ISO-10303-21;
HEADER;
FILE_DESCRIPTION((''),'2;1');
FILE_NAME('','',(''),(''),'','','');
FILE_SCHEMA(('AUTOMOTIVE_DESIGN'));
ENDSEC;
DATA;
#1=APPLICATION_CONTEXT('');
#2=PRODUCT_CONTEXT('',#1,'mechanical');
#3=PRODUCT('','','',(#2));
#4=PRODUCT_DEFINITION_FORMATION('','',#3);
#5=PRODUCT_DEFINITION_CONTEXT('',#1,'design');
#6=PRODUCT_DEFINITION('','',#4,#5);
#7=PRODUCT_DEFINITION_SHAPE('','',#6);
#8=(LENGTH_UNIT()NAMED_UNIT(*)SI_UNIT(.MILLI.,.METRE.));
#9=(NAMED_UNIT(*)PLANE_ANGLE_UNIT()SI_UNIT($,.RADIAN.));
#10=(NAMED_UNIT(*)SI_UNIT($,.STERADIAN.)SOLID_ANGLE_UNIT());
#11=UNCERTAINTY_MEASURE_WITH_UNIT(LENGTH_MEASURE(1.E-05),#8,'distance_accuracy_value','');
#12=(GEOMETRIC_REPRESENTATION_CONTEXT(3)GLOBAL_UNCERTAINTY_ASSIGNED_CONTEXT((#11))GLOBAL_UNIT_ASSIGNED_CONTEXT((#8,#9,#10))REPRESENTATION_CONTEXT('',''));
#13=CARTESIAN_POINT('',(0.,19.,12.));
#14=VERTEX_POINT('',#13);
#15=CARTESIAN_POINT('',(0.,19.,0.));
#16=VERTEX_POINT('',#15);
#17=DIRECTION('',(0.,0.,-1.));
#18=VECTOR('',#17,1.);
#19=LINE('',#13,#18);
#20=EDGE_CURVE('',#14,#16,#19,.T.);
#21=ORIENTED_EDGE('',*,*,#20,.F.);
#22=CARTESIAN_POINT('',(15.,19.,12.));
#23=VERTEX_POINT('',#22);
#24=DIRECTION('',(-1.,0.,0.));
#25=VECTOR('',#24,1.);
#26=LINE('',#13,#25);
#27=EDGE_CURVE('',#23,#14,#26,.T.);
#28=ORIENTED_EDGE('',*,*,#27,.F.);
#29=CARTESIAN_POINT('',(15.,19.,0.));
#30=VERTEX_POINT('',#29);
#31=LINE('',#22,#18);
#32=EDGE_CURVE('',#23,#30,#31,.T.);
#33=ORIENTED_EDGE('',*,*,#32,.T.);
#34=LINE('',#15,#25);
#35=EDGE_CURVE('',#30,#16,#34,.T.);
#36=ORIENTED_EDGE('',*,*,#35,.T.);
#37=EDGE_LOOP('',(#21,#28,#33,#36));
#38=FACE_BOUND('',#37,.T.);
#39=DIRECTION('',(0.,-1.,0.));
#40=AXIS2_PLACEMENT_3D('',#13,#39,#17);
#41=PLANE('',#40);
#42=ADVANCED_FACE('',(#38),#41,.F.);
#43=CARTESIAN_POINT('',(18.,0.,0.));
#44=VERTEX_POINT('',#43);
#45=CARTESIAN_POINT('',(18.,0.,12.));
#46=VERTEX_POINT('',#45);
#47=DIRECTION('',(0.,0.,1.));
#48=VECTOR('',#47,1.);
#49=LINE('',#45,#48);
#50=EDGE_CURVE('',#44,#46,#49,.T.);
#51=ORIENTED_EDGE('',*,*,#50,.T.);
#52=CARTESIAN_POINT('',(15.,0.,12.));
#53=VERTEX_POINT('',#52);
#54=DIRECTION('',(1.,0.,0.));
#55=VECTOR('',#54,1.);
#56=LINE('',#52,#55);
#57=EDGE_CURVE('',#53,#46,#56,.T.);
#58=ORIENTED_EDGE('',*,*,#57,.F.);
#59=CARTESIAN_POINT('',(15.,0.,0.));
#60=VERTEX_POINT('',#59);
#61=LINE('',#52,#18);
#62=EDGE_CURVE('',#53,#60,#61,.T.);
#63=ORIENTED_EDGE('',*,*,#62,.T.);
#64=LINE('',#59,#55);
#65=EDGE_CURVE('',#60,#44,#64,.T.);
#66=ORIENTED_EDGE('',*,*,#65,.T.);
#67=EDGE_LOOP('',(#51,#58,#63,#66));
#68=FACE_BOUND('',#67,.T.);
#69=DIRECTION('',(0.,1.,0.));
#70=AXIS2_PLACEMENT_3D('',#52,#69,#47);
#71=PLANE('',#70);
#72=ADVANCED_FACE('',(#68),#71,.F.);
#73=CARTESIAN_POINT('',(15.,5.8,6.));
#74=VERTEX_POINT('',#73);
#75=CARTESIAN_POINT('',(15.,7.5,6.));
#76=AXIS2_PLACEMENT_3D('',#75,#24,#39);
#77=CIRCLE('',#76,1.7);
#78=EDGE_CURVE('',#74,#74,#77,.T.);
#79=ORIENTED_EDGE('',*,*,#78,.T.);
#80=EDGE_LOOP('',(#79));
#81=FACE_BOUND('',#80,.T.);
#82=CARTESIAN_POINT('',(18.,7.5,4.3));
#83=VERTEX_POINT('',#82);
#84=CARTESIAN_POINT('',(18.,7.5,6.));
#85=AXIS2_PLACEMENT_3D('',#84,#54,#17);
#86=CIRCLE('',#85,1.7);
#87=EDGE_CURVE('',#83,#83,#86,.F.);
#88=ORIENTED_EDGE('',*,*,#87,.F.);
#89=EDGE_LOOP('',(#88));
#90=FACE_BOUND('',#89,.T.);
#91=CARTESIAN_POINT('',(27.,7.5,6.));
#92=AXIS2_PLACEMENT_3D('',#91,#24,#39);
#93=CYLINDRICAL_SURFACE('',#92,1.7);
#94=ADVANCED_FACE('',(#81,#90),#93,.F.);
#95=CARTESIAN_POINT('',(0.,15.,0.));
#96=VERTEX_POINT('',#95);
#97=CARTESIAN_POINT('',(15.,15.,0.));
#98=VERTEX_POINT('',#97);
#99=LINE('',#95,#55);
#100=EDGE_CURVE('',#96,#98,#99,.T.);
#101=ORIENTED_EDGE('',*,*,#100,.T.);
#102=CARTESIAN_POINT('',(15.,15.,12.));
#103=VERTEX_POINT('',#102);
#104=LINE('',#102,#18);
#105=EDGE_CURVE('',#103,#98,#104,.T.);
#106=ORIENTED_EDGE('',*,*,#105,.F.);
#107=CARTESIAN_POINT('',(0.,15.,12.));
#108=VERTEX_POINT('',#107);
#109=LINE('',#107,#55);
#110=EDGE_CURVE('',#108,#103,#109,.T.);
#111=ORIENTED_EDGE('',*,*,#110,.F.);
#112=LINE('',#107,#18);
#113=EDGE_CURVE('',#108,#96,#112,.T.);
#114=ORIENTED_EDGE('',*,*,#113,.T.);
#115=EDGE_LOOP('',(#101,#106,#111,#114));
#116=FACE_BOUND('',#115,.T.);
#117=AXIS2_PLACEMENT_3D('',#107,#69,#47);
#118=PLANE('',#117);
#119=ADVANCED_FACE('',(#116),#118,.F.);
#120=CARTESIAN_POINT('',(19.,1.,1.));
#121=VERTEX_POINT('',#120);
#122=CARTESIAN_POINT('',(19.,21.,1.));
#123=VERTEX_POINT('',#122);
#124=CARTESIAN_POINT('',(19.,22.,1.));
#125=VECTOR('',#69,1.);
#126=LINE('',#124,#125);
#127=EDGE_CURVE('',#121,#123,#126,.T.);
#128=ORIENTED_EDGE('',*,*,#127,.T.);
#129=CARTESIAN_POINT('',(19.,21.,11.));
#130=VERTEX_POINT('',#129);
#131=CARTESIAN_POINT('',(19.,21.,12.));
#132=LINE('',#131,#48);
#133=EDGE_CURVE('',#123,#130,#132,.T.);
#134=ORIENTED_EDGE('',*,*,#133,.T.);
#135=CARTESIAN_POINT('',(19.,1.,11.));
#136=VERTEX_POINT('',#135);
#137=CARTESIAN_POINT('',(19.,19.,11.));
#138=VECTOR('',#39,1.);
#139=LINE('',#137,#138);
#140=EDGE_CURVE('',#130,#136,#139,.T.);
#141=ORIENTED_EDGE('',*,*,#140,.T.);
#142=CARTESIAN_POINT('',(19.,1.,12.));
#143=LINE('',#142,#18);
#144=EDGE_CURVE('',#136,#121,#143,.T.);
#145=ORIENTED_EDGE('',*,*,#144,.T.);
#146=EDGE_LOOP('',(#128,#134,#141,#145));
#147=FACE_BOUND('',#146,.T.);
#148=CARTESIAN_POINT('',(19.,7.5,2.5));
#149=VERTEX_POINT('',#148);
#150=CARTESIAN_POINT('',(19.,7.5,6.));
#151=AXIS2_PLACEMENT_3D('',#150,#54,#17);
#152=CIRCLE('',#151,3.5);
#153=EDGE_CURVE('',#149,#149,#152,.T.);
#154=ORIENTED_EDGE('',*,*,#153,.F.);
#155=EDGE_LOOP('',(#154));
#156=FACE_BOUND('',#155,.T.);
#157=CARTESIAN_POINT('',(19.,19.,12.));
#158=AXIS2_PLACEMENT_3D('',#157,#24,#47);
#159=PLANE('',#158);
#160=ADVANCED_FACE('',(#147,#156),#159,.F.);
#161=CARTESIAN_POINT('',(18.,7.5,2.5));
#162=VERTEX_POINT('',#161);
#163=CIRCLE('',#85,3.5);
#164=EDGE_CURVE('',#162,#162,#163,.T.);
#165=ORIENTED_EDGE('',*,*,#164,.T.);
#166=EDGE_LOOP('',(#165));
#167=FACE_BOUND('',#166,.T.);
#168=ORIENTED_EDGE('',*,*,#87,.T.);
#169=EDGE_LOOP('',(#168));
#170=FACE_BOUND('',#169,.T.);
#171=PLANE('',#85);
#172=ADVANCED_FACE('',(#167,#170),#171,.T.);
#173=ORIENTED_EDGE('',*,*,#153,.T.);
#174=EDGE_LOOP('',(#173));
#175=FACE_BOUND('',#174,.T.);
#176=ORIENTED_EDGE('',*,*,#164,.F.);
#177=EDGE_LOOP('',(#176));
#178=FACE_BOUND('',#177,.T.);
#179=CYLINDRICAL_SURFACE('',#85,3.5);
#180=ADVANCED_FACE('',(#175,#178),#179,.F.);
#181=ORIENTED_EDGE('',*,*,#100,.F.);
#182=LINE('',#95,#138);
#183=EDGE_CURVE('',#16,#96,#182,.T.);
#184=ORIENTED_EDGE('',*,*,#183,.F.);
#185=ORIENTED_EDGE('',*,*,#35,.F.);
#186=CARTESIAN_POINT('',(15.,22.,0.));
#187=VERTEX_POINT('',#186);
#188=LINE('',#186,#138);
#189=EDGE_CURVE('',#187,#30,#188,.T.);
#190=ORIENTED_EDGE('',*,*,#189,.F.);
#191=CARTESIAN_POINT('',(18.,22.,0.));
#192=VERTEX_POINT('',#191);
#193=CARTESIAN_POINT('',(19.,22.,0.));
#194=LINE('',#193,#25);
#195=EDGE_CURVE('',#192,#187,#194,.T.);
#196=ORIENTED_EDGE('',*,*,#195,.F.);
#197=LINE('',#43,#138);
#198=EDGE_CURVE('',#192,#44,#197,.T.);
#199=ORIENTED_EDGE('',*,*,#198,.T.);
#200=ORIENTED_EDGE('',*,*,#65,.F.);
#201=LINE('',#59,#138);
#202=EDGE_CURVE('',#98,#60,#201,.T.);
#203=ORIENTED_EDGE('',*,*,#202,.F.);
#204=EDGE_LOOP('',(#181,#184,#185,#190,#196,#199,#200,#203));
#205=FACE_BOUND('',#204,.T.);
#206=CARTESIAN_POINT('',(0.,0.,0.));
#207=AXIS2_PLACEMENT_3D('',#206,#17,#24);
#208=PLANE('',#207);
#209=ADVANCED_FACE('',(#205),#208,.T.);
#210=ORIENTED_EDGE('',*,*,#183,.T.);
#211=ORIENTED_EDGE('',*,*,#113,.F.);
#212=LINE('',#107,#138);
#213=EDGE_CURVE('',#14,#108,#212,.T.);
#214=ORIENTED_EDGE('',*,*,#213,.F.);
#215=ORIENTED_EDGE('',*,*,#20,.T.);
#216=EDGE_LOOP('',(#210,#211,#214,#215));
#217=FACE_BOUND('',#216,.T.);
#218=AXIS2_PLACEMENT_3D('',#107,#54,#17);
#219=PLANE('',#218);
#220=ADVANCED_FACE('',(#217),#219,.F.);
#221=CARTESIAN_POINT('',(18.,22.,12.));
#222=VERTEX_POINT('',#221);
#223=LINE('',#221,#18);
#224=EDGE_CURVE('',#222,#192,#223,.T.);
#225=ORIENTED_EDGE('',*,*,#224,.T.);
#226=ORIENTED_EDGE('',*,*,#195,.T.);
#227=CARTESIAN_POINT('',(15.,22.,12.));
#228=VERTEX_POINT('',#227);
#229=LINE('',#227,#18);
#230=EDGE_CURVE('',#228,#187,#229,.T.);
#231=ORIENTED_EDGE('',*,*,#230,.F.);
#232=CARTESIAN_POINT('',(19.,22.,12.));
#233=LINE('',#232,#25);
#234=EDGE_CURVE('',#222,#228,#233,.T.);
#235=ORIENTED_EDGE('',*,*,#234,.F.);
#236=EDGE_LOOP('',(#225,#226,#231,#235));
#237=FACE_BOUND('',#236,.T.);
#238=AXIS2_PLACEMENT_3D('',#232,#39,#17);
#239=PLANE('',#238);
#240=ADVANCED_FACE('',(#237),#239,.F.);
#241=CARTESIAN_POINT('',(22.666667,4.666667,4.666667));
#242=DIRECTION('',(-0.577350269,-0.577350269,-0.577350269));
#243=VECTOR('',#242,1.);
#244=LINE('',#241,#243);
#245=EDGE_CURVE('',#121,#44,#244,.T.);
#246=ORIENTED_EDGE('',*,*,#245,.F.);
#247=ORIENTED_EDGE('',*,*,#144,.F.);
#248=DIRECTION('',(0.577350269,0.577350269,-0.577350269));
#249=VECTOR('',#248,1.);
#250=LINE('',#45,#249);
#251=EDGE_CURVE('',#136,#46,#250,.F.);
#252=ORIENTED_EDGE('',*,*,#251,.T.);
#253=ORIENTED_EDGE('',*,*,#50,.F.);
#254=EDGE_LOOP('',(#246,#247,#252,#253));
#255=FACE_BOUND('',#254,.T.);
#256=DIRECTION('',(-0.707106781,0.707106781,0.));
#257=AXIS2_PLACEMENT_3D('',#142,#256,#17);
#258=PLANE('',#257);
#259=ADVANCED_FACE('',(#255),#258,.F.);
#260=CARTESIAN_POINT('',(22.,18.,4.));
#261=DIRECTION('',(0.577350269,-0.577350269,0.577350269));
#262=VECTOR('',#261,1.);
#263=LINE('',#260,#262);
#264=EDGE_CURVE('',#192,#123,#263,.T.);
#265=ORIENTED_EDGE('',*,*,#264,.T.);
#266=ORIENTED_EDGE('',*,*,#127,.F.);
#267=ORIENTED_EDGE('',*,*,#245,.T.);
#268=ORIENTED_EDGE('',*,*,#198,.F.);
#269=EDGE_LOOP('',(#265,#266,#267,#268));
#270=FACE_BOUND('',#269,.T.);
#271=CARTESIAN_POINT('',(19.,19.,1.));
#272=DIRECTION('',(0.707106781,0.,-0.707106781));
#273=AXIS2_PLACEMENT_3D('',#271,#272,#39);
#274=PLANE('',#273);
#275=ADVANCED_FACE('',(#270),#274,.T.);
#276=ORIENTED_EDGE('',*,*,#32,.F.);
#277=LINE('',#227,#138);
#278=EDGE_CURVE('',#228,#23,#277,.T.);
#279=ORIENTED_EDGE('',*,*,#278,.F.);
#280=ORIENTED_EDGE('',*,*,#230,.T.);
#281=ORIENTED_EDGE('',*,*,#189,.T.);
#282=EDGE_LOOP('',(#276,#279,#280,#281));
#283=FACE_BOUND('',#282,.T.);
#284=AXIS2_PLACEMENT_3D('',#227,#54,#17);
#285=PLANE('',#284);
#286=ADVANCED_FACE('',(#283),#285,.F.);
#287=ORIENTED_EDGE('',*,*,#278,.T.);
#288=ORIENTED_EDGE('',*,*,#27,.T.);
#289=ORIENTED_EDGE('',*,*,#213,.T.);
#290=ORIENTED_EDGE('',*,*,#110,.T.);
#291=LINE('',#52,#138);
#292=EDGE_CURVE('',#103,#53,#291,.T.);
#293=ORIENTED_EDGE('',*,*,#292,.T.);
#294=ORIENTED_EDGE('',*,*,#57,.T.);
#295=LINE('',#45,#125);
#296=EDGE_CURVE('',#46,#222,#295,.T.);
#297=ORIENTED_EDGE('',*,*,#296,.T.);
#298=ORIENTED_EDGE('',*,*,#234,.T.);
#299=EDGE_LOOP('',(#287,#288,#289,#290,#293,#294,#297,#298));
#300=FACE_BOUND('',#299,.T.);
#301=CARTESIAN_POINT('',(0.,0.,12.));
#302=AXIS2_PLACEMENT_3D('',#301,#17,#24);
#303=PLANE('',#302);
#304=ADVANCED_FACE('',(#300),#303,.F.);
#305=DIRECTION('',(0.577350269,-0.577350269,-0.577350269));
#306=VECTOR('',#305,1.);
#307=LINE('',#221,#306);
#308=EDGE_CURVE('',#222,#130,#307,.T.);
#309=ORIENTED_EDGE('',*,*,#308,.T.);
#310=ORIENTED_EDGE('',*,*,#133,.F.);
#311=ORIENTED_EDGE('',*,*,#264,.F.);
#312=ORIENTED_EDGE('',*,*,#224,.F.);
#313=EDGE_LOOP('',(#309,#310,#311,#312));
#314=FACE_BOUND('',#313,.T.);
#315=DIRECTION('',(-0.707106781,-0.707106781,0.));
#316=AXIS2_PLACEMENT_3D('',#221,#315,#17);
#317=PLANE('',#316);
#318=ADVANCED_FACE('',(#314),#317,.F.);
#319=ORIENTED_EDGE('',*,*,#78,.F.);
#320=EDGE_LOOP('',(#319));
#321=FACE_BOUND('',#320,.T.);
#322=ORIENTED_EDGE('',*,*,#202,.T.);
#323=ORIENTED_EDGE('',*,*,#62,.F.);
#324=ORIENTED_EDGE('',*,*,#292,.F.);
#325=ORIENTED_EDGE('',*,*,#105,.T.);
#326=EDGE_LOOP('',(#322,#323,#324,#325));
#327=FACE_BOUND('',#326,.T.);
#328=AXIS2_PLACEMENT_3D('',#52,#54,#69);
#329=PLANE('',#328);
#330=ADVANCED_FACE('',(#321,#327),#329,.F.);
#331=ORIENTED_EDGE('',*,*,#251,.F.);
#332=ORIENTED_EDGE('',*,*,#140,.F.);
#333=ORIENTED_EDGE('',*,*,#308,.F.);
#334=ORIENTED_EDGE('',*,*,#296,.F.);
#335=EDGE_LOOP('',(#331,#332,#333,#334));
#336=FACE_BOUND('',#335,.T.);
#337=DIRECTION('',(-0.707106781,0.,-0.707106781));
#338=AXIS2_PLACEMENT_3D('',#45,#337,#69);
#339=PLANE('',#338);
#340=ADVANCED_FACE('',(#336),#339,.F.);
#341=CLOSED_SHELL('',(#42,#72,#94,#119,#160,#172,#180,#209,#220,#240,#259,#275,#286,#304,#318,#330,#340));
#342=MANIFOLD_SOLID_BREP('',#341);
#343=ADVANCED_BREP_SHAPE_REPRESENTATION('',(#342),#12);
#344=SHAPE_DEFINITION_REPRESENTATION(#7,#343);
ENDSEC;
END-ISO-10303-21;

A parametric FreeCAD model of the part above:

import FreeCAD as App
import Part
import Sketcher

V = App.Vector


def edges_at(feature, points):
    """Names of the edges that pass closest to the given points."""
    edges = feature.Shape.Edges
    near = lambda p: min(range(len(edges)), key=lambda i: edges[i].distToShape(Part.Vertex(*p))[0])
    return sorted({f"Edge{near(p) + 1}" for p in points})

doc = App.newDocument("Part")
body = doc.addObject("PartDesign::Body", "Body")

# Sketch on XY plane
sketch1 = body.newObject("Sketcher::SketchObject", "Sketch")
sketch1.AttachmentSupport = (doc.getObject("XY_Plane"), [""])
sketch1.MapMode = "FlatFace"
sketch1.addGeometry(Part.LineSegment(V(15, 19, 0), V(0, 19, 0)), False)
sketch1.addGeometry(Part.LineSegment(V(0, 19, 0), V(0, 15, 0)), False)
sketch1.addGeometry(Part.LineSegment(V(0, 15, 0), V(15, 15, 0)), False)
sketch1.addGeometry(Part.LineSegment(V(15, 15, 0), V(15, 0, 0)), False)
sketch1.addGeometry(Part.LineSegment(V(15, 0, 0), V(19, 0, 0)), False)
sketch1.addGeometry(Part.LineSegment(V(19, 0, 0), V(19, 22, 0)), False)
sketch1.addGeometry(Part.LineSegment(V(19, 22, 0), V(15, 22, 0)), False)
sketch1.addGeometry(Part.LineSegment(V(15, 22, 0), V(15, 19, 0)), False)
sketch1.addConstraint(Sketcher.Constraint("Coincident", 0, 2, 1, 1))
sketch1.addConstraint(Sketcher.Constraint("Coincident", 1, 2, 2, 1))
sketch1.addConstraint(Sketcher.Constraint("Coincident", 2, 2, 3, 1))
sketch1.addConstraint(Sketcher.Constraint("Coincident", 3, 2, 4, 1))
sketch1.addConstraint(Sketcher.Constraint("Coincident", 4, 2, 5, 1))
sketch1.addConstraint(Sketcher.Constraint("Coincident", 5, 2, 6, 1))
sketch1.addConstraint(Sketcher.Constraint("Coincident", 6, 2, 7, 1))
sketch1.addConstraint(Sketcher.Constraint("Coincident", 7, 2, 0, 1))
sketch1.addConstraint(Sketcher.Constraint("Horizontal", 0))
sketch1.addConstraint(Sketcher.Constraint("Vertical", 1))
sketch1.addConstraint(Sketcher.Constraint("Horizontal", 2))
sketch1.addConstraint(Sketcher.Constraint("Vertical", 3))
sketch1.addConstraint(Sketcher.Constraint("Horizontal", 4))
sketch1.addConstraint(Sketcher.Constraint("Vertical", 5))
sketch1.addConstraint(Sketcher.Constraint("Horizontal", 6))
sketch1.addConstraint(Sketcher.Constraint("Vertical", 7))
sketch1.addConstraint(Sketcher.Constraint("PointOnObject", 0, 2, -2))
sketch1.addConstraint(Sketcher.Constraint("PointOnObject", 3, 2, -1))
sketch1.addConstraint(Sketcher.Constraint("Vertical", 3, 2, 6, 2))
sketch1.addConstraint(Sketcher.Constraint("Equal", 6, 1))
sketch1.addConstraint(Sketcher.Constraint("Equal", 2, 3))
sketch1.addConstraint(Sketcher.Constraint("DistanceX", 0, 2, 0, 1, 15.0))
sketch1.addConstraint(Sketcher.Constraint("DistanceX", 4, 1, 4, 2, 4.0))
sketch1.addConstraint(Sketcher.Constraint("DistanceY", 5, 1, 5, 2, 22.0))
pad1 = body.newObject("PartDesign::Pad", "Pad")
pad1.Profile = sketch1
pad1.Length = 12

# Sketch on YZ plane
sketch2 = body.newObject("Sketcher::SketchObject", "Sketch001")
sketch2.AttachmentSupport = (doc.getObject("YZ_Plane"), [""])
sketch2.MapMode = "FlatFace"
sketch2.AttachmentOffset = App.Placement(V(0, 0, 15), App.Rotation())
sketch2.addGeometry(Part.Circle(V(7.5, 6, 0), V(0, 0, 1), 1.7), False)
sketch2.addConstraint(Sketcher.Constraint("Diameter", 0, 3.4))
sketch2.addConstraint(Sketcher.Constraint("DistanceY", -1, 1, 0, 3, 6.0))
sketch2.addConstraint(Sketcher.Constraint("DistanceX", -1, 1, 0, 3, 7.5))
pocket1 = body.newObject("PartDesign::Pocket", "Pocket")
pocket1.Profile = sketch2
pocket1.Length = 12
pocket1.Reversed = True

# Sketch on YZ plane
sketch3 = body.newObject("Sketcher::SketchObject", "Sketch002")
sketch3.AttachmentSupport = (doc.getObject("YZ_Plane"), [""])
sketch3.MapMode = "FlatFace"
sketch3.AttachmentOffset = App.Placement(V(0, 0, 19), App.Rotation())
sketch3.addGeometry(Part.Circle(V(7.5, 6, 0), V(0, 0, 1), 3.5), False)
sketch3.addConstraint(Sketcher.Constraint("Diameter", 0, 7.0))
sketch3.addConstraint(Sketcher.Constraint("DistanceY", -1, 1, 0, 3, 6.0))
sketch3.addConstraint(Sketcher.Constraint("DistanceX", -1, 1, 0, 3, 7.5))
pocket2 = body.newObject("PartDesign::Pocket", "Pocket001")
pocket2.Profile = sketch3
pocket2.Length = 1
doc.recompute()

chamfer = body.newObject("PartDesign::Chamfer", "Chamfer")
chamfer.Base = (pocket2, edges_at(pocket2, [
    (19, 11, 12),
    (19, 11, 0),
    (19, 22, 6),
    (19, 0, 6),
]))
chamfer.Size = 1

doc.recompute()
